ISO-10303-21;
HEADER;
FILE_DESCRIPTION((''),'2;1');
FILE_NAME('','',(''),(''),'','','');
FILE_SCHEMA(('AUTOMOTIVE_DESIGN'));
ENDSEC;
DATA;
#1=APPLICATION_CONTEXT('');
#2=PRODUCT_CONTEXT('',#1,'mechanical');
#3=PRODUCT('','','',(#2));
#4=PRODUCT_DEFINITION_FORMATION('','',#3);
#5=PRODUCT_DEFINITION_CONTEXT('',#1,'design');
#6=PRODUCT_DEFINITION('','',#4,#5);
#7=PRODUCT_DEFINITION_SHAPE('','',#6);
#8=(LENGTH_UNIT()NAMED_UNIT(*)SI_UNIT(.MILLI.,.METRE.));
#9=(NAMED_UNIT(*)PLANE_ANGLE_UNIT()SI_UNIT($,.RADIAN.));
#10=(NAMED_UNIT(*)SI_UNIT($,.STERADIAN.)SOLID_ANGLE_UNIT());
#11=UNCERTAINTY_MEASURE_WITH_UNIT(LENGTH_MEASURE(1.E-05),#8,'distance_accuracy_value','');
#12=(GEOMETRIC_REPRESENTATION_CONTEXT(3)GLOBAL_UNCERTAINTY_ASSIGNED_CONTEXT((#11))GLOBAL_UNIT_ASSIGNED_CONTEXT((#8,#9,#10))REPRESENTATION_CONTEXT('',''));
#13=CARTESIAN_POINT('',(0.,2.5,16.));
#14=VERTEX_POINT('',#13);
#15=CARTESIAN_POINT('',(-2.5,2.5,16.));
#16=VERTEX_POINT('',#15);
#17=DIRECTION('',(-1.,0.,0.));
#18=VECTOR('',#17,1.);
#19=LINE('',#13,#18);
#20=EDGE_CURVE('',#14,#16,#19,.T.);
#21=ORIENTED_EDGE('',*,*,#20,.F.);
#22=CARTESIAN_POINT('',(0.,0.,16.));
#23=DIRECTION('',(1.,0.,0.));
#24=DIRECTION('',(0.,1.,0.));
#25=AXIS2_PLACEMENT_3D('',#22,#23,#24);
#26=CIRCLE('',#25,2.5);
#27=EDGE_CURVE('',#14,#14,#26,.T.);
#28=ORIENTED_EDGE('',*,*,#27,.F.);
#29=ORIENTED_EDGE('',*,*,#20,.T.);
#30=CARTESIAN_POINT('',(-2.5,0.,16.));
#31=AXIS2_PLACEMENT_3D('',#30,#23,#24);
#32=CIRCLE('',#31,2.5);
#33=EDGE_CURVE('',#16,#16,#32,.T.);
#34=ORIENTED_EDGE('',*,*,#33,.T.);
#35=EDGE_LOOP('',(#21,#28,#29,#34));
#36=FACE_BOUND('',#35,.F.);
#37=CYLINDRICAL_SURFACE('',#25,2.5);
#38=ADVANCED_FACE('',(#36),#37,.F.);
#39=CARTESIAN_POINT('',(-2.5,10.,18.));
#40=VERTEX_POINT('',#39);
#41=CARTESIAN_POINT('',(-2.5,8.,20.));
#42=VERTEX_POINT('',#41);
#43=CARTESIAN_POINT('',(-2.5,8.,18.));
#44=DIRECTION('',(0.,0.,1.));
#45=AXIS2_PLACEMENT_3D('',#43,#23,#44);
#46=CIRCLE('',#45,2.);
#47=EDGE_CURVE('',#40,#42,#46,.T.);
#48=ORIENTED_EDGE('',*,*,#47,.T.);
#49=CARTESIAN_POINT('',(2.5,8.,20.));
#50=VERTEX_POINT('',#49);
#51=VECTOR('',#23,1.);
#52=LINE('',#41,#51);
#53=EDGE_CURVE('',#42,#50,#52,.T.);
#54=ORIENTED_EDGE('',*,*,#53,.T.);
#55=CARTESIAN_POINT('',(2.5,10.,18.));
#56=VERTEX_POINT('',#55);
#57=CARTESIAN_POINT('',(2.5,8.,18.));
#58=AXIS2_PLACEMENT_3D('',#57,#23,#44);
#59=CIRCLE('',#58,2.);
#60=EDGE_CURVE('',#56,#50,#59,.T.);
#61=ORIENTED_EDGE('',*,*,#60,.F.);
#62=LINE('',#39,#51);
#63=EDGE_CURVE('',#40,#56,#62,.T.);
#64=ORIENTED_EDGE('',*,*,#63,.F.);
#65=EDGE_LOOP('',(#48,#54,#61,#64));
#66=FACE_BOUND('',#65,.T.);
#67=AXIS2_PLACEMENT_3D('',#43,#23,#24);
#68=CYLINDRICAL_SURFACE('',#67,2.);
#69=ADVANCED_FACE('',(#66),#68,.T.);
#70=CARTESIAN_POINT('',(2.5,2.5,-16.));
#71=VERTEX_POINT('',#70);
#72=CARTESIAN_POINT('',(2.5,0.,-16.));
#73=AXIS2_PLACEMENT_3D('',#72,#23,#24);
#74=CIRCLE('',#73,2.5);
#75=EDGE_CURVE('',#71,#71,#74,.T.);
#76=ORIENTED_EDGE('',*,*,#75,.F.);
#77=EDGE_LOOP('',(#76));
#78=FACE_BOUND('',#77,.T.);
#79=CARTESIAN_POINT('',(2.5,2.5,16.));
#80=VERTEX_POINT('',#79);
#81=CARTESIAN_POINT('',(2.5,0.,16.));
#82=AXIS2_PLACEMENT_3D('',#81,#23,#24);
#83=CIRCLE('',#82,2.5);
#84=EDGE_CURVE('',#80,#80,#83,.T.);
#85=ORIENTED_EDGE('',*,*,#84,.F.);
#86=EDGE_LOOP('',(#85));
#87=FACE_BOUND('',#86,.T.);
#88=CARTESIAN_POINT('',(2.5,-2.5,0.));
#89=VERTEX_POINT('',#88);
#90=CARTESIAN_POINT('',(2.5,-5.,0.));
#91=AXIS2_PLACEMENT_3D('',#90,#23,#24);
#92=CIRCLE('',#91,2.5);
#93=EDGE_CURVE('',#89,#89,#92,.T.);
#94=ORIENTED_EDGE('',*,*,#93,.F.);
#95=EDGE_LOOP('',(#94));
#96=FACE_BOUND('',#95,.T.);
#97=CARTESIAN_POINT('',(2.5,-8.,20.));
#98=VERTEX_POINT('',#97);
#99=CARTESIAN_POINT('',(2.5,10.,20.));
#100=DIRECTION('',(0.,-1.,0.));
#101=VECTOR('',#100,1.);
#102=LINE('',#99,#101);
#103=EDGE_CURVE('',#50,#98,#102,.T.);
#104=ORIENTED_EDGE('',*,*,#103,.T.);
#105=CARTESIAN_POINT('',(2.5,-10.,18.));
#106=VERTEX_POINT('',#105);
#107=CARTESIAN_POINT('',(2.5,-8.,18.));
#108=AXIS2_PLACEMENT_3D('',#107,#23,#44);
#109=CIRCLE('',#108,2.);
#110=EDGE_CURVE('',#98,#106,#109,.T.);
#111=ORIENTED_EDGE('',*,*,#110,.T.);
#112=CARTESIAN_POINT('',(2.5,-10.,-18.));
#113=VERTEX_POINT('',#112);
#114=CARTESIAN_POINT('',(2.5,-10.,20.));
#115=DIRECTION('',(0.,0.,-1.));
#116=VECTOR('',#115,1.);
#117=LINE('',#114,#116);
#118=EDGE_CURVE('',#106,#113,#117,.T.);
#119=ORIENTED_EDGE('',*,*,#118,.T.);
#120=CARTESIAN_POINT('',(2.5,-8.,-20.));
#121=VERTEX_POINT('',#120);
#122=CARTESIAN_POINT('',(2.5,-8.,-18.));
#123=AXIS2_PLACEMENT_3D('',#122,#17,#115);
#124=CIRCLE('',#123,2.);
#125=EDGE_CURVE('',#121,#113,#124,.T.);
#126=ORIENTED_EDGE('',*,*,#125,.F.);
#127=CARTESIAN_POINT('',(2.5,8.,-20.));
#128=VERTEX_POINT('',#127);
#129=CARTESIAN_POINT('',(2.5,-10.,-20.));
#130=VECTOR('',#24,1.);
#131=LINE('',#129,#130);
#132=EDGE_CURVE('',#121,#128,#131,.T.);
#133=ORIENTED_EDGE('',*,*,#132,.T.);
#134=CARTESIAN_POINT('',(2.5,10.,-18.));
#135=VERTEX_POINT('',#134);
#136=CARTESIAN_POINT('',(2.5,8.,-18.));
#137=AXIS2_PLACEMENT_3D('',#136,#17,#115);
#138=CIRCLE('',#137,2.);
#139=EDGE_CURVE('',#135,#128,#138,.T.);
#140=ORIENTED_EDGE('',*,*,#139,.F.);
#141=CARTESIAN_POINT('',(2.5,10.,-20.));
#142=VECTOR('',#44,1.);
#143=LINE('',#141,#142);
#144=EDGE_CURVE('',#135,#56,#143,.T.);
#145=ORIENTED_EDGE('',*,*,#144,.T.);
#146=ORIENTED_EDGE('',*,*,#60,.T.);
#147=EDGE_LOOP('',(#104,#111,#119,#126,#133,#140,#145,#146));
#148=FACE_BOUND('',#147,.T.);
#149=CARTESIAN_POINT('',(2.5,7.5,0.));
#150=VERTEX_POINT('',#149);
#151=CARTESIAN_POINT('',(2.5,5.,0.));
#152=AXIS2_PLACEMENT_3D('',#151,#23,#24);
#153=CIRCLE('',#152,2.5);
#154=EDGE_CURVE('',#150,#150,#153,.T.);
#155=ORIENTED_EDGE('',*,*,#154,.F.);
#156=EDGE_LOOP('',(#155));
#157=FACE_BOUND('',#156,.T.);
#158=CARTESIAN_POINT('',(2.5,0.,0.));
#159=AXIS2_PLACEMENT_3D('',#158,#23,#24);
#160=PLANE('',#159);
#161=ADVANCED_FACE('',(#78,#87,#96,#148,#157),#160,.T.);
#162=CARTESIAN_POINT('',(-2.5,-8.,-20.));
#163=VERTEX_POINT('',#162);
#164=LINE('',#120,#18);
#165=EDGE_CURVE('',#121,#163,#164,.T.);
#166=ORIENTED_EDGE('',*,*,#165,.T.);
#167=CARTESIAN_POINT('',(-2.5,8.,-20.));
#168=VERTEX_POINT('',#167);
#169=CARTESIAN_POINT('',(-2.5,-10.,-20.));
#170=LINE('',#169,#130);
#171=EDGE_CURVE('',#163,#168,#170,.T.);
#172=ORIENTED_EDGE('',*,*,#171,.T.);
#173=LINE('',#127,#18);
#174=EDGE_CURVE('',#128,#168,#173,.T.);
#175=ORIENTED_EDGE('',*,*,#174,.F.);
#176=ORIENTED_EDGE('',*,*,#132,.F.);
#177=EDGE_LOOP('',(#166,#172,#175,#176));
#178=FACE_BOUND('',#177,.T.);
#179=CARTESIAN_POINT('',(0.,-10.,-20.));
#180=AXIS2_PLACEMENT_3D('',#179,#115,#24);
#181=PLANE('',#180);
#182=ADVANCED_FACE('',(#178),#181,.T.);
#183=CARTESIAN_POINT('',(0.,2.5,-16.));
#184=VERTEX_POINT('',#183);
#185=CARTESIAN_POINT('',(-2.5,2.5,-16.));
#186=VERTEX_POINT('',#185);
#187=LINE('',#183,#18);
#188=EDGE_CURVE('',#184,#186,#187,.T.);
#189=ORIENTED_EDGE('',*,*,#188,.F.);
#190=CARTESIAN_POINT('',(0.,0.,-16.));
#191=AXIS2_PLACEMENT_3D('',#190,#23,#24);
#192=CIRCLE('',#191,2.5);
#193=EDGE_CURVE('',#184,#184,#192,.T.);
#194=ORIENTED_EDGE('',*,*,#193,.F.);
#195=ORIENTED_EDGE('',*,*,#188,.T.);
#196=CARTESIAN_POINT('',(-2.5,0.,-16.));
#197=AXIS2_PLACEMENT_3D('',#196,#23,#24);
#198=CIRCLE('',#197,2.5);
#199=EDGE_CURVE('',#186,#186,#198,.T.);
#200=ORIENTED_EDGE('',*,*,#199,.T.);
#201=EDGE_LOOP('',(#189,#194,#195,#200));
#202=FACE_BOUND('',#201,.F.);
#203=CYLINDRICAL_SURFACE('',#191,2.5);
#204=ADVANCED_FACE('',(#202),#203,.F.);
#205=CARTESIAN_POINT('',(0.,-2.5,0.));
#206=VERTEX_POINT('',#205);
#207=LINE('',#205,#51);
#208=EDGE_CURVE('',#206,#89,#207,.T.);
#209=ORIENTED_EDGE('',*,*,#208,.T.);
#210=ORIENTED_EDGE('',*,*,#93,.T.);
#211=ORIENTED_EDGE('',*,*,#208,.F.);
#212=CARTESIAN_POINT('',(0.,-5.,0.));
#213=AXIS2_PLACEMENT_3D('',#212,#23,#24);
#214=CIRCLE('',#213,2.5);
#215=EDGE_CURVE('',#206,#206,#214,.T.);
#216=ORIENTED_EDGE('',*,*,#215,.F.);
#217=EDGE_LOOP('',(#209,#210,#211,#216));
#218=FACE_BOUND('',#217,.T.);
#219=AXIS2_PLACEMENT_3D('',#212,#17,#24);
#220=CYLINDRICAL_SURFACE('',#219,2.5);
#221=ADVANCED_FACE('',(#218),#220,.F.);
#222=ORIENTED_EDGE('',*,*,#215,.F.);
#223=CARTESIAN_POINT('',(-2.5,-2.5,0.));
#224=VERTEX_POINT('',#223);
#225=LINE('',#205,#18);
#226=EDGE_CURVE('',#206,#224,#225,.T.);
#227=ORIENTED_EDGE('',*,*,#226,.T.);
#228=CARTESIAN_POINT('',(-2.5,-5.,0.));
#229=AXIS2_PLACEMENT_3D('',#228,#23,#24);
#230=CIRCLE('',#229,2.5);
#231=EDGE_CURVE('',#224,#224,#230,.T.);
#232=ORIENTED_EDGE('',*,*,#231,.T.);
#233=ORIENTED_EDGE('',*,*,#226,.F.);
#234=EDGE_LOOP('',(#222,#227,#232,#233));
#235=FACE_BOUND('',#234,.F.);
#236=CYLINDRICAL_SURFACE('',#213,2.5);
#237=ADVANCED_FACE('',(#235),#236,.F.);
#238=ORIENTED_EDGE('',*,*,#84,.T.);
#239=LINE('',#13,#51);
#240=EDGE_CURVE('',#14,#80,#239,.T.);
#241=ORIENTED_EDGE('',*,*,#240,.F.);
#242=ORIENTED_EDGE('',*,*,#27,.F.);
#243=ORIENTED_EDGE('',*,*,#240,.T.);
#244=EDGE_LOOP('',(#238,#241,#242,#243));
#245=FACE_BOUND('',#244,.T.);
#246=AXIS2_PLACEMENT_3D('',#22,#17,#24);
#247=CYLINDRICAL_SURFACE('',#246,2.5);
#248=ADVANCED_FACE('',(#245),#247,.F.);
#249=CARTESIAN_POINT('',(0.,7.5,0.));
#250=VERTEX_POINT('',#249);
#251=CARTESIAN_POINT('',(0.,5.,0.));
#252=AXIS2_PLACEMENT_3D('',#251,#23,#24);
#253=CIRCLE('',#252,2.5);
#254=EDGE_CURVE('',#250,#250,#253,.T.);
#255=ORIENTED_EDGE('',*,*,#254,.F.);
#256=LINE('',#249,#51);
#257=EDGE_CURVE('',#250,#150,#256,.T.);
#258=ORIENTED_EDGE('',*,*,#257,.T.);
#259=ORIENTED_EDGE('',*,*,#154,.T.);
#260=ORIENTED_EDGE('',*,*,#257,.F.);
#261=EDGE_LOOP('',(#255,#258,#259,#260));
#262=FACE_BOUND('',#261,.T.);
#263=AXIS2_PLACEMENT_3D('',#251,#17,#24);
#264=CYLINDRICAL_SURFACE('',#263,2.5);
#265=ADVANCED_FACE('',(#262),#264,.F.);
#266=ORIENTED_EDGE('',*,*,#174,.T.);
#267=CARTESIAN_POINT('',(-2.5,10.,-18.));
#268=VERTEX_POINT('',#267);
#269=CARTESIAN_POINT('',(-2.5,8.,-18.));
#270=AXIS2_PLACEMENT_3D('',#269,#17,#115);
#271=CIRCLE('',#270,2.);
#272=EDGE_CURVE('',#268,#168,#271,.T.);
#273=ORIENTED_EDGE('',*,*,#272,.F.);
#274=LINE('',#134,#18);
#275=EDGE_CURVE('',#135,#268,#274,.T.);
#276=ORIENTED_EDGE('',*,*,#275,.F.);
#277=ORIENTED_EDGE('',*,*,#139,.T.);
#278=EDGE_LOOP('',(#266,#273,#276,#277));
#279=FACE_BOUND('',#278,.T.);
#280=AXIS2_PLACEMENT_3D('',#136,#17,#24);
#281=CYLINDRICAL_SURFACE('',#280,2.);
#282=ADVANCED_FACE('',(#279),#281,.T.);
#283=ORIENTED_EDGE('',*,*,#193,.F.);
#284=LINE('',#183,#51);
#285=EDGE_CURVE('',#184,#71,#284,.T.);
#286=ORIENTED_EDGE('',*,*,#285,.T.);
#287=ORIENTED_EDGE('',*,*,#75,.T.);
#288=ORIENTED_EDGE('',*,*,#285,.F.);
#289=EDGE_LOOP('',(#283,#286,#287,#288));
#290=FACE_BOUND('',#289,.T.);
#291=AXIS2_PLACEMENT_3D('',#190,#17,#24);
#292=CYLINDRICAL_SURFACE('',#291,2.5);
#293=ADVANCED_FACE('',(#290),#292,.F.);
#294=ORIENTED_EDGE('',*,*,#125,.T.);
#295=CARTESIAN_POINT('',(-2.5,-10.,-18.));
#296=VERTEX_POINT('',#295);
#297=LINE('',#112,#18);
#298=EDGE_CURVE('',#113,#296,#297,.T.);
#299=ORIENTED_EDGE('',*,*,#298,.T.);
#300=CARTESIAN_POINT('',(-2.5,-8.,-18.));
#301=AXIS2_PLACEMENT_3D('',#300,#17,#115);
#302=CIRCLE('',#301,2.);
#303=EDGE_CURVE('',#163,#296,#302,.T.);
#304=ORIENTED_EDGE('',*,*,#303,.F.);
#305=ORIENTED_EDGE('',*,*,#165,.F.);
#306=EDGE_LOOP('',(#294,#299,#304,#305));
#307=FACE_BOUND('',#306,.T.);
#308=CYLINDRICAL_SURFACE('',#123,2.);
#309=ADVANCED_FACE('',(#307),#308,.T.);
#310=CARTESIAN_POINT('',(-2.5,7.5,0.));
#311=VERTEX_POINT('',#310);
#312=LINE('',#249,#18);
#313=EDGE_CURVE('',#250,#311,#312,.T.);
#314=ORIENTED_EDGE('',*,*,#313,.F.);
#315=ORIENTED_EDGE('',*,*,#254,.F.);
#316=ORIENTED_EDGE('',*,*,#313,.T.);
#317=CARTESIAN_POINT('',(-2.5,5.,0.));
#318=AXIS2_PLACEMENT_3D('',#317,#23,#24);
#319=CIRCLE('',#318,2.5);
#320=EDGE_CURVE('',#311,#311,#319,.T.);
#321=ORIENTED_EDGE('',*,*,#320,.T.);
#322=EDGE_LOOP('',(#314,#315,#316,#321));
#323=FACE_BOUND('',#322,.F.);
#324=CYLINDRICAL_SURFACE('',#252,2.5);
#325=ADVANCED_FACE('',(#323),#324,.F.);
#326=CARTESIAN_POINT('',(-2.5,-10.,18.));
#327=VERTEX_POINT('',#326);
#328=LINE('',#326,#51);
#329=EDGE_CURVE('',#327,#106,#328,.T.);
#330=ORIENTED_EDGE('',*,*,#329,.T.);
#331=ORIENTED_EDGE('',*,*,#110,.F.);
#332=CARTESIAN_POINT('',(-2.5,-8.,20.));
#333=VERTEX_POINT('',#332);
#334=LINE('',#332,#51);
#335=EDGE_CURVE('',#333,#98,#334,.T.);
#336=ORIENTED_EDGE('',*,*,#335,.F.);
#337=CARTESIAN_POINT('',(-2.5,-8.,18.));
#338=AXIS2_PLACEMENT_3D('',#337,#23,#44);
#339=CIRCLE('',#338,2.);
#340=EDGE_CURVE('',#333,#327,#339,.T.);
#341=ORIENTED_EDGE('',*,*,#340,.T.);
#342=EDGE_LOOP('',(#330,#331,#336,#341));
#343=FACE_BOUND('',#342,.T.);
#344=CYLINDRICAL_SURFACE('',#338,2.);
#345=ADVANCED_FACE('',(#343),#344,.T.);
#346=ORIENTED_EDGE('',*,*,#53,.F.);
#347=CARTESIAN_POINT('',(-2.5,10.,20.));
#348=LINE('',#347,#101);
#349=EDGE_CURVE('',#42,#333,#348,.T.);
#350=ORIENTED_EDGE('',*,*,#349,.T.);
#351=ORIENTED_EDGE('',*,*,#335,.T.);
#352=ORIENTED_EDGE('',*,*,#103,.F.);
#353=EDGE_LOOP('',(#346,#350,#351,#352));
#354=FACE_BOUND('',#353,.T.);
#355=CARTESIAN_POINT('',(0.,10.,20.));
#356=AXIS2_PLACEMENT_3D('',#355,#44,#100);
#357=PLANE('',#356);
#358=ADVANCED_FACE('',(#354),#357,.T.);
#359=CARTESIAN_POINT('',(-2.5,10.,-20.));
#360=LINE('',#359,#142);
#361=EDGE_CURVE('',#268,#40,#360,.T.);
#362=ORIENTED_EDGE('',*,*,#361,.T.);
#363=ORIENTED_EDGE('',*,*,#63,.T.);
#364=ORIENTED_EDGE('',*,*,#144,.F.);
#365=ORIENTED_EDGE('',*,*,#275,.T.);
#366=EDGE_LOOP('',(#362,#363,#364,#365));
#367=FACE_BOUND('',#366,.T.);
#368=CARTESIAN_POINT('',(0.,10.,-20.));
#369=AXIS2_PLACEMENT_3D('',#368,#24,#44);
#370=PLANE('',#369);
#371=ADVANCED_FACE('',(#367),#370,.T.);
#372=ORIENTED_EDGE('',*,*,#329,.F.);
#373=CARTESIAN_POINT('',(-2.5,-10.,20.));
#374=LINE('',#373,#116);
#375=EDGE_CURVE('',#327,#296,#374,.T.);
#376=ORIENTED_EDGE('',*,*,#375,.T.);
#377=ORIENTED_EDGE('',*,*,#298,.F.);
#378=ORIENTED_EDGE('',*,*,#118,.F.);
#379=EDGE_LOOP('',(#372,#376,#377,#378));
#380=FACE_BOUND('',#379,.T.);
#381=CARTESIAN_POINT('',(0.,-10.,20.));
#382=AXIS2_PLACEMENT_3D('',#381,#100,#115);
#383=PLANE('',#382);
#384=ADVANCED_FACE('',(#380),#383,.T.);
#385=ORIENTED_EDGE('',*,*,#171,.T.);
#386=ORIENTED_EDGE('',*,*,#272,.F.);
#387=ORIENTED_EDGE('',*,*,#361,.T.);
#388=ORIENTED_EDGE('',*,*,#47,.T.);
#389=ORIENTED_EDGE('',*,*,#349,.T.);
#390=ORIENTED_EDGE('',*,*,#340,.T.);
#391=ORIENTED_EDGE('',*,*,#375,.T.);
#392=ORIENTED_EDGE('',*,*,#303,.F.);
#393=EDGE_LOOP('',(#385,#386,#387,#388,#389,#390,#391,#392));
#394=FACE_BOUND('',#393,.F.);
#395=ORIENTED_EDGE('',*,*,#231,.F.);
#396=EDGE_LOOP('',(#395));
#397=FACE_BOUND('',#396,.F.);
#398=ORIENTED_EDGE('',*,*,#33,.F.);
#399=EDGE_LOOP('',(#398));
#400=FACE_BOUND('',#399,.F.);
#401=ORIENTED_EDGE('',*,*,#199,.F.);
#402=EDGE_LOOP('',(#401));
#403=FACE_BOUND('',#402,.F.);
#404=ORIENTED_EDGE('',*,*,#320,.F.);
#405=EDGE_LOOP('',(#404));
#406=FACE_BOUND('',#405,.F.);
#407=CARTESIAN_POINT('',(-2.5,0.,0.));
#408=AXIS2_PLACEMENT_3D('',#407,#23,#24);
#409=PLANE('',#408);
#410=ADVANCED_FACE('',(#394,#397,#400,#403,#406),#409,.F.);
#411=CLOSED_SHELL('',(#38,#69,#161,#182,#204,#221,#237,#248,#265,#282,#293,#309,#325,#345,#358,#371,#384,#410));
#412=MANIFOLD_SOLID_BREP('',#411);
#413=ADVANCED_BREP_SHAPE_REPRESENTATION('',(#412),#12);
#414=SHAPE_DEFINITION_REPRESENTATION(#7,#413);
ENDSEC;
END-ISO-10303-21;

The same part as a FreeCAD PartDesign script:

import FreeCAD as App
import Part
import Sketcher
from FreeCAD import Vector


def edges_at(feature, points):
    """Names of the edges that pass closest to the given points."""
    edges = feature.Shape.Edges
    near = lambda p: min(range(len(edges)), key=lambda i: edges[i].distToShape(Part.Vertex(*p))[0])
    return sorted({f"Edge{near(p) + 1}" for p in points})


def add_polygon(sketch, points):
    """Adds a closed chain of lines whose ends are joined by coincident constraints."""
    first, n = sketch.GeometryCount, len(points)
    for a, b in zip(points, points[1:] + points[:1]):
        sketch.addGeometry(Part.LineSegment(App.Vector(*a, 0), App.Vector(*b, 0)), False)
    for i in range(n):
        sketch.addConstraint(Sketcher.Constraint("Coincident", first + i, 2, first + (i + 1) % n, 1))

doc = App.newDocument("Part")
body = doc.addObject("PartDesign::Body", "Body")

# Sketch on YZ plane
sketch1 = body.newObject("Sketcher::SketchObject", "Sketch")
sketch1.AttachmentSupport = (doc.getObject("YZ_Plane"), [""])
sketch1.MapMode = "FlatFace"
add_polygon(sketch1, [(10, -20), (10, 20), (-10, 20), (-10, -20)])  # lines 0-3
sketch1.addGeometry(Part.Circle(Vector(0, -16, 0), Vector(0, 0, 1), 2.5), False)  # 4
sketch1.addGeometry(Part.Circle(Vector(0, 16, 0), Vector(0, 0, 1), 2.5), False)  # 5
sketch1.addConstraint(Sketcher.Constraint("Vertical", 0))
sketch1.addConstraint(Sketcher.Constraint("Horizontal", 1))
sketch1.addConstraint(Sketcher.Constraint("Vertical", 2))
sketch1.addConstraint(Sketcher.Constraint("Horizontal", 3))
sketch1.addConstraint(Sketcher.Constraint("Equal", 4, 5))
sketch1.addConstraint(Sketcher.Constraint("Symmetric", 4, 3, 5, 3, -1, 1))
sketch1.addConstraint(Sketcher.Constraint("Symmetric", 0, 2, 2, 2, -1, 1))
sketch1.addConstraint(Sketcher.Constraint("PointOnObject", 4, 3, -2))
sketch1.addConstraint(Sketcher.Constraint("Diameter", 4, 5.0))
sketch1.addConstraint(Sketcher.Constraint("DistanceX", 1, 2, 1, 1, 20.0))
sketch1.addConstraint(Sketcher.Constraint("DistanceY", 0, 1, 0, 2, 40.0))
sketch1.addConstraint(Sketcher.Constraint("DistanceY", 5, 3, 0, 2, 4.0))
pad1 = body.newObject("PartDesign::Pad", "Pad")
pad1.Profile = sketch1
pad1.Length = 5
pad1.Midplane = True
doc.recompute()

fillet = body.newObject("PartDesign::Fillet", "Fillet")
fillet.Base = (pad1, edges_at(pad1, [
    (0, 10, 20),
    (0, -10, 20),
    (0, 10, -20),
    (0, -10, -20),
]))
fillet.Radius = 2

# Sketch on YZ plane
sketch2 = body.newObject("Sketcher::SketchObject", "Sketch001")
sketch2.AttachmentSupport = (doc.getObject("YZ_Plane"), [""])
sketch2.MapMode = "FlatFace"
sketch2.addGeometry(Part.Circle(Vector(5, 0, 0), Vector(0, 0, 1), 2.5), False)
sketch2.addGeometry(Part.Circle(Vector(-5, 0, 0), Vector(0, 0, 1), 2.5), False)
sketch2.addConstraint(Sketcher.Constraint("Equal", 0, 1))
sketch2.addConstraint(Sketcher.Constraint("Symmetric", 0, 3, 1, 3, -1, 1))
sketch2.addConstraint(Sketcher.Constraint("PointOnObject", 0, 3, -1))
sketch2.addConstraint(Sketcher.Constraint("Diameter", 0, 5.0))
sketch2.addConstraint(Sketcher.Constraint("DistanceX", -1, 1, 0, 3, 5.0))
pocket1 = body.newObject("PartDesign::Pocket", "Pocket")
pocket1.Profile = sketch2
pocket1.Length = 5
pocket1.Midplane = True

doc.recompute()
